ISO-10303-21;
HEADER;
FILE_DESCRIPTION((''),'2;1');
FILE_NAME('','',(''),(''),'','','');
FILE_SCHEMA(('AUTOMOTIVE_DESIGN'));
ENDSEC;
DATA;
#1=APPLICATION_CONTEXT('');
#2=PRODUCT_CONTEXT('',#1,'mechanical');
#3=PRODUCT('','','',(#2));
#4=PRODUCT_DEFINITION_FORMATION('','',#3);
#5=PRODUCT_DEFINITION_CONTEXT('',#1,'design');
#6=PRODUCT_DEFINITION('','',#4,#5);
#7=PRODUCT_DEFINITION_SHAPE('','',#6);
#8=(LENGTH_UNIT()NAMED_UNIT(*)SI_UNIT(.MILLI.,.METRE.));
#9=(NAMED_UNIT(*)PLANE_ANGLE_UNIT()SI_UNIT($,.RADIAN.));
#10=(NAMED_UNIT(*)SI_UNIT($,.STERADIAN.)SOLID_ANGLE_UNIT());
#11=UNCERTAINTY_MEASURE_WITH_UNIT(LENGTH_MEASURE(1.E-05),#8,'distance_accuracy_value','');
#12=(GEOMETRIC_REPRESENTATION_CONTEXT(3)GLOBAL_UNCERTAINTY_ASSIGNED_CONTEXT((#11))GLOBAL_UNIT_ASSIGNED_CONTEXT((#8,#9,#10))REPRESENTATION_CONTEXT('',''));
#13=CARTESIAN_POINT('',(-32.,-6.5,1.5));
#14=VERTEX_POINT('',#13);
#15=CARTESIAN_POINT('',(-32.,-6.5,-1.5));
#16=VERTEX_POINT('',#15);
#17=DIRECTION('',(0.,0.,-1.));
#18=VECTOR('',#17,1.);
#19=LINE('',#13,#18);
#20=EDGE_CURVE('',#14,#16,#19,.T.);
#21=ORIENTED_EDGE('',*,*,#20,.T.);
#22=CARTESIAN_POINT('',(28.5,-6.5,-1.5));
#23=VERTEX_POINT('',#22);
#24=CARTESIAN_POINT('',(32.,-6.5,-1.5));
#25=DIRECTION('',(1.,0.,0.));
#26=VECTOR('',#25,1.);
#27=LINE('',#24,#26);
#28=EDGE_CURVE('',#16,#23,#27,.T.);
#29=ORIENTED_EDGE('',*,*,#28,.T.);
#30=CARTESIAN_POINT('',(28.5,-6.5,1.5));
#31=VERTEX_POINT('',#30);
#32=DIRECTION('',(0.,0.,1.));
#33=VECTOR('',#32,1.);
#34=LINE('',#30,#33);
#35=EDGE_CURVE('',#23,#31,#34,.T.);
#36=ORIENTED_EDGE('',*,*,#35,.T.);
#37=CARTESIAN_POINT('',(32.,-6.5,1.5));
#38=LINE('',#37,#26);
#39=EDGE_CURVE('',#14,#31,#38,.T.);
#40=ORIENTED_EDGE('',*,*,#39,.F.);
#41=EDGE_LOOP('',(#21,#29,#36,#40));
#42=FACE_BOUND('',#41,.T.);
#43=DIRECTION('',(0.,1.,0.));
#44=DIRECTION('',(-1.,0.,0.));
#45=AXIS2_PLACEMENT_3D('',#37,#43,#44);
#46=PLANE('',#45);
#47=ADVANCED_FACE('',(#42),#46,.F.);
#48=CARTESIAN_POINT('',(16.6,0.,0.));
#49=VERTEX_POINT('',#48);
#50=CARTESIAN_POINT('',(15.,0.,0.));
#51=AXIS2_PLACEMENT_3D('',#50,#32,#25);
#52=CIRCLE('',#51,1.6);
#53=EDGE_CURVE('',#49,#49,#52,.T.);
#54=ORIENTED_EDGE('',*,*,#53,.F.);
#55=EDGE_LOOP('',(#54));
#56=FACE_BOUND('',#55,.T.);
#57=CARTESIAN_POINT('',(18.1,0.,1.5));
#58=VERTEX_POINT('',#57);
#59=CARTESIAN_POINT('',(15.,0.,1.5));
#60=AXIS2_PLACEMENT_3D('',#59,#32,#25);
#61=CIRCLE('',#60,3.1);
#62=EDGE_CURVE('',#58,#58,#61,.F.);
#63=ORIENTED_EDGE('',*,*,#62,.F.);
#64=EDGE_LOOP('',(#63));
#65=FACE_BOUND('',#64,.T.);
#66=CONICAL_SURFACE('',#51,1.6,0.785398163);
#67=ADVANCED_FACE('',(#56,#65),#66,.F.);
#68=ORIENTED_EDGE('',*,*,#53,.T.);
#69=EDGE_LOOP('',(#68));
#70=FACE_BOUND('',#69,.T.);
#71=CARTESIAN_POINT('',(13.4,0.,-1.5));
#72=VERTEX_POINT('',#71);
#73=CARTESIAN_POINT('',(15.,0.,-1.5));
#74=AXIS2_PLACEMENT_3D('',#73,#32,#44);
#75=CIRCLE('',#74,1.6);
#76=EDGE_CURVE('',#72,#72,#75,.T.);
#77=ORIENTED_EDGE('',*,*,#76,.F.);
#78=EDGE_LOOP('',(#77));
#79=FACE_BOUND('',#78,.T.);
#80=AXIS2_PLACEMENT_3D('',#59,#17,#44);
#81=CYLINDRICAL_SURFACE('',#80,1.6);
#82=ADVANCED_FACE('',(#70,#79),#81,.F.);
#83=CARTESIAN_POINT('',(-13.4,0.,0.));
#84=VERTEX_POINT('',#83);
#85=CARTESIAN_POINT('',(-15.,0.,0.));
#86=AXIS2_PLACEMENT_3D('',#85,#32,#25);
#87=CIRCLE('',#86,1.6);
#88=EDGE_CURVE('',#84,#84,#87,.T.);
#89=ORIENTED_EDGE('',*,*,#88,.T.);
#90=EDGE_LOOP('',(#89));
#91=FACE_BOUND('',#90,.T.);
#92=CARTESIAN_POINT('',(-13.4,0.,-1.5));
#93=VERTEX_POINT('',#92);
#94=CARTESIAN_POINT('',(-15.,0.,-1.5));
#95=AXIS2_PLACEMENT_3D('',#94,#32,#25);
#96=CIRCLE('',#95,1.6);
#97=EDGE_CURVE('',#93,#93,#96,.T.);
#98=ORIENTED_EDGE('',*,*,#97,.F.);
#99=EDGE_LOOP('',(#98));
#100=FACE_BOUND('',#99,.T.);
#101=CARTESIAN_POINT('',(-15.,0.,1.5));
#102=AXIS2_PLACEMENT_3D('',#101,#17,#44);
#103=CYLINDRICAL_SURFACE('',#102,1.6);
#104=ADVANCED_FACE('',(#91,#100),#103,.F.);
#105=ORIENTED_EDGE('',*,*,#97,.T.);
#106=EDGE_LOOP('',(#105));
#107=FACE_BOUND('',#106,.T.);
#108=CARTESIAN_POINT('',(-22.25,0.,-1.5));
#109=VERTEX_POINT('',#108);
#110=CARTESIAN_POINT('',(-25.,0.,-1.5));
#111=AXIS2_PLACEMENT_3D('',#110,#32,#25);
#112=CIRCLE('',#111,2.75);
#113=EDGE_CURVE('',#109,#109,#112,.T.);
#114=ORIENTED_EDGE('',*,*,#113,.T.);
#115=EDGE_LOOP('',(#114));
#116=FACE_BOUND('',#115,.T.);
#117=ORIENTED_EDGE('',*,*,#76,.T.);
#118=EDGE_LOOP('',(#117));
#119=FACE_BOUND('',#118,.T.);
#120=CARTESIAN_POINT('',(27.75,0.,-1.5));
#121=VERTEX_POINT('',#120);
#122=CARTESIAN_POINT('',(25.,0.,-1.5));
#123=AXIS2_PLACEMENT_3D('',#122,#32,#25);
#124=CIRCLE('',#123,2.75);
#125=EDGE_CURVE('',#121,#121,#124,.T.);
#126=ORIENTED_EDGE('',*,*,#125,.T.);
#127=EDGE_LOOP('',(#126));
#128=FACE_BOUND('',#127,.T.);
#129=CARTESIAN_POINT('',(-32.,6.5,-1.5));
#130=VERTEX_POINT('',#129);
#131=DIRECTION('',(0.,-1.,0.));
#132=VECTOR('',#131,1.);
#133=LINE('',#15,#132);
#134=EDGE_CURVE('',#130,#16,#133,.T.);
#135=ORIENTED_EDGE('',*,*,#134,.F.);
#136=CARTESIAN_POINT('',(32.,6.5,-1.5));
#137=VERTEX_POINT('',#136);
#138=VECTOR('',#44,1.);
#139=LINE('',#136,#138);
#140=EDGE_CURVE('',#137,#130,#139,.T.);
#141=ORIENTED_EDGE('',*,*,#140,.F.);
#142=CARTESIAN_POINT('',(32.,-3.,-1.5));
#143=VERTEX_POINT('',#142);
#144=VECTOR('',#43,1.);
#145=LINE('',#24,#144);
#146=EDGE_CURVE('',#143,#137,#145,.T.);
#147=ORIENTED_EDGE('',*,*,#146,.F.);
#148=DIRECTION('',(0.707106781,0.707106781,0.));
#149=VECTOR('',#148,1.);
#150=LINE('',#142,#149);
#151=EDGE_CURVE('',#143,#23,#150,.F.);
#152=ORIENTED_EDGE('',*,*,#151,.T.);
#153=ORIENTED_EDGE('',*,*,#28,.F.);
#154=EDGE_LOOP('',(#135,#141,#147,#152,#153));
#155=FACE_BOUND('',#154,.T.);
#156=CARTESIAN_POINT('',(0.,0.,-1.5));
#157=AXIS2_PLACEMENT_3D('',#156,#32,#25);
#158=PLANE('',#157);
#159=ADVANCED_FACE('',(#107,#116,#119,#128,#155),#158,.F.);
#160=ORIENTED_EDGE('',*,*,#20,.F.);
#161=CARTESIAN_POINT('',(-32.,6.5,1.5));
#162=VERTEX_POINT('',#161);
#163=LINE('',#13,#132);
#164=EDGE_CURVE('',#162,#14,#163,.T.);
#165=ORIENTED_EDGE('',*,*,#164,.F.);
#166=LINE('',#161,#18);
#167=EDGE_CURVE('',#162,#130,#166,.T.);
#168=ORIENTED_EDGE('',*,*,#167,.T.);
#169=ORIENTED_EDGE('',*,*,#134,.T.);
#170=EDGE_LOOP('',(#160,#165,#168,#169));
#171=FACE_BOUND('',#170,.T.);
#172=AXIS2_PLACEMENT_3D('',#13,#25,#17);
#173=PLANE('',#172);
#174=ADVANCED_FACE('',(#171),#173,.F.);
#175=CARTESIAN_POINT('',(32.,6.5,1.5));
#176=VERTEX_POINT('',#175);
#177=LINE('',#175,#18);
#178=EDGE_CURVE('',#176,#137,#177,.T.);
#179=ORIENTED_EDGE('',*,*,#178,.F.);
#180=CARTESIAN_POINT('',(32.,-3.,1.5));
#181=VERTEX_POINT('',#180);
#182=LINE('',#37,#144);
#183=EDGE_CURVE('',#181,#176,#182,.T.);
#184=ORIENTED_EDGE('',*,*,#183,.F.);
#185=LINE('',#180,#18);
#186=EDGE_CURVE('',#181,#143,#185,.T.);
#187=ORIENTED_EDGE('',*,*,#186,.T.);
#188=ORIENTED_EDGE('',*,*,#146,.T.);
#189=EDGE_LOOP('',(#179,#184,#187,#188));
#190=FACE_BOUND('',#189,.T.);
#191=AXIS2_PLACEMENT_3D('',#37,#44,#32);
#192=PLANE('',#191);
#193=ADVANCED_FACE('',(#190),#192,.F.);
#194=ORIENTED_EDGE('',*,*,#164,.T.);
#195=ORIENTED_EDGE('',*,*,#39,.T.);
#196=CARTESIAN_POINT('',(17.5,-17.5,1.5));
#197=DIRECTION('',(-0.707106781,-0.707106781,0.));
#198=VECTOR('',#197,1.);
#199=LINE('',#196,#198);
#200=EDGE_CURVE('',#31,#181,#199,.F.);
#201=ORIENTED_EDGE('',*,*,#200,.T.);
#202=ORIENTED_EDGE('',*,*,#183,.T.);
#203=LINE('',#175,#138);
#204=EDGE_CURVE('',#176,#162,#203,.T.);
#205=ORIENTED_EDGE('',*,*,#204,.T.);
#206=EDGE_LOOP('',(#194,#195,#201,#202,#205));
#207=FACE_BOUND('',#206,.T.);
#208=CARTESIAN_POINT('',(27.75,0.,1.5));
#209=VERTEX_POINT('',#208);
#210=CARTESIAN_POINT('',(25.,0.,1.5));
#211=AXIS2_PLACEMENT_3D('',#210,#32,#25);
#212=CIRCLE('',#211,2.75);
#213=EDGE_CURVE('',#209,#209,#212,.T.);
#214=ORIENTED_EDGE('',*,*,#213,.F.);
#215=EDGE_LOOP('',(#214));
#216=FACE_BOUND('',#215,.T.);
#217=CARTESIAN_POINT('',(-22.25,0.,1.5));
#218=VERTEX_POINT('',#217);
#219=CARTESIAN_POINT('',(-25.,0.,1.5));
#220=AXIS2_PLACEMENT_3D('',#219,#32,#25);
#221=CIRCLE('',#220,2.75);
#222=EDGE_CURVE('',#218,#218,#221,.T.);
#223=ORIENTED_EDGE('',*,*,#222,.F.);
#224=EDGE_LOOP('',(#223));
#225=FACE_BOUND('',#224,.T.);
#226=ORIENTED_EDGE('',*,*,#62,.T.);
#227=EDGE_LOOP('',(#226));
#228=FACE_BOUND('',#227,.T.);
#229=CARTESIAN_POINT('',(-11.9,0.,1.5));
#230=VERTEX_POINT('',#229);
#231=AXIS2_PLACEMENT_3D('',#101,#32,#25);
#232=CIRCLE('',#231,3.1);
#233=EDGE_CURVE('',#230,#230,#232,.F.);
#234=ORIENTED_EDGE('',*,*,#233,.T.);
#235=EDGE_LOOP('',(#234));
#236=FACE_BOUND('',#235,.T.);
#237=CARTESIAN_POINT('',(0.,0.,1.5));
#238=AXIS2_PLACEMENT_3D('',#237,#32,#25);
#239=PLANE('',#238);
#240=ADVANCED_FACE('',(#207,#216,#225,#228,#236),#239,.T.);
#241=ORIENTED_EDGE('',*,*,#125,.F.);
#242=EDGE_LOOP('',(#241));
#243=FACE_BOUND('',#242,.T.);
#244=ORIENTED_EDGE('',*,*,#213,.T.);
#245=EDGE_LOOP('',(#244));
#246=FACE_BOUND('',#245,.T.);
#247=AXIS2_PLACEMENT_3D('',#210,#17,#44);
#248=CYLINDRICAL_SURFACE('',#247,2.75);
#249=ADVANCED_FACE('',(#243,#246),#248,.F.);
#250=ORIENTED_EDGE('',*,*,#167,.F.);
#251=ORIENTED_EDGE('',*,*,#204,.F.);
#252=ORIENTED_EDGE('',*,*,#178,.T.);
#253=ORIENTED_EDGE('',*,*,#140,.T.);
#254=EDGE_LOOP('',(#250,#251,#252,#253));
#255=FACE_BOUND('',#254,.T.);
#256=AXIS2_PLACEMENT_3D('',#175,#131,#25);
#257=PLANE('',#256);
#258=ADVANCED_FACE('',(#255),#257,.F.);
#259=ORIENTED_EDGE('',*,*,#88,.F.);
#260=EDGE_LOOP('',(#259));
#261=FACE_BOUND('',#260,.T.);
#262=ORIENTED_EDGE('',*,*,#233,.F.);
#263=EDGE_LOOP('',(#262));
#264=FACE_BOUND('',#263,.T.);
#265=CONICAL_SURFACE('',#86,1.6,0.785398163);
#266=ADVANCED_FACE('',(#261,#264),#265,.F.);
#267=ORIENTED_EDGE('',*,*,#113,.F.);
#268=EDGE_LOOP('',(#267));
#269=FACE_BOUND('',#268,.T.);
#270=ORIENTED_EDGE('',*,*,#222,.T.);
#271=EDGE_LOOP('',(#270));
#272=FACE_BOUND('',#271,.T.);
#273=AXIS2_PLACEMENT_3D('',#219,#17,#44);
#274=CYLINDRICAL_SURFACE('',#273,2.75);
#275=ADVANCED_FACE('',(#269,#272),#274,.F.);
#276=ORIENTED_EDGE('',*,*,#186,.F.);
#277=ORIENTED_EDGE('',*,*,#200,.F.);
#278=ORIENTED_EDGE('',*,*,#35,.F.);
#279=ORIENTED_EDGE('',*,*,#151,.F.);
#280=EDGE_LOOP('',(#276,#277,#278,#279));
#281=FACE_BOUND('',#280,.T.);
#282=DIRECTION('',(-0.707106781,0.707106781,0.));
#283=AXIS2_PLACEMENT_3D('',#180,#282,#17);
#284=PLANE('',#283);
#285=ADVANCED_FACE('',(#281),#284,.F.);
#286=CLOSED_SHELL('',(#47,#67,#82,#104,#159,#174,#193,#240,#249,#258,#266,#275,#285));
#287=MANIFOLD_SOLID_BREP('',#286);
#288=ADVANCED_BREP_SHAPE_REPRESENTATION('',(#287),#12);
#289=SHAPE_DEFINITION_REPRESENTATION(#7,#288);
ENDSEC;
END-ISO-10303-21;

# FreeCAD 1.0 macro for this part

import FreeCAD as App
import Part
import Sketcher
from FreeCAD import Vector
Q = App.Units.Quantity


def edges_at(feature, points):
    """Names of the edges that pass closest to the given points."""
    edges = feature.Shape.Edges
    near = lambda p: min(range(len(edges)), key=lambda i: edges[i].distToShape(Part.Vertex(*p))[0])
    return sorted({f"Edge{near(p) + 1}" for p in points})

doc = App.newDocument("Part")
body = doc.addObject("PartDesign::Body", "Body")

sketch1 = body.newObject("Sketcher::SketchObject", "Sketch")
sketch1.AttachmentSupport = (doc.getObject("XY_Plane"), [""])
sketch1.MapMode = "FlatFace"
sketch1.addGeometry([
    Part.LineSegment(Vector(-32, 6.5, 0), Vector(-32, -6.5, 0)),
    Part.LineSegment(Vector(-32, -6.5, 0), Vector(32, -6.5, 0)),
    Part.LineSegment(Vector(32, -6.5, 0), Vector(32, 6.5, 0)),
    Part.LineSegment(Vector(32, 6.5, 0), Vector(-32, 6.5, 0)),
    Part.Circle(Vector(-25, 0, 0), Vector(0, 0, 1), 2.8),
    Part.Circle(Vector(-15, 0, 0), Vector(0, 0, 1), 1.6),
    Part.Circle(Vector(15, 0, 0), Vector(0, 0, 1), 1.6),
    Part.Circle(Vector(25, 0, 0), Vector(0, 0, 1), 2.8),
], False)
sketch1.addConstraint([
    Sketcher.Constraint("Coincident", 0, 2, 1, 1),
    Sketcher.Constraint("Coincident", 1, 2, 2, 1),
    Sketcher.Constraint("Coincident", 2, 2, 3, 1),
    Sketcher.Constraint("Coincident", 3, 2, 0, 1),
    Sketcher.Constraint("Vertical", 0),
    Sketcher.Constraint("Horizontal", 1),
    Sketcher.Constraint("Vertical", 2),
    Sketcher.Constraint("Horizontal", 3),
    Sketcher.Constraint("Equal", 5, 6),
    Sketcher.Constraint("Equal", 4, 7),
    Sketcher.Constraint("Symmetric", 5, 3, 6, 3, -1, 1),
    Sketcher.Constraint("Symmetric", 4, 3, 7, 3, -1, 1),
    Sketcher.Constraint("Symmetric", 0, 2, 2, 2, -1, 1),
    Sketcher.Constraint("PointOnObject", 4, 3, -1),
    Sketcher.Constraint("PointOnObject", 5, 3, -1),
    Sketcher.Constraint("Diameter", 4, Q("5.5 mm")),
    Sketcher.Constraint("Diameter", 5, Q("3.2 mm")),
    Sketcher.Constraint("DistanceX", 1, 1, 1, 2, Q("64 mm")),
    Sketcher.Constraint("DistanceY", 0, 2, 0, 1, Q("13 mm")),
    Sketcher.Constraint("DistanceX", 4, 3, -1, 1, Q("25 mm")),
    Sketcher.Constraint("DistanceX", 5, 3, -1, 1, Q("15 mm")),
])
pad1 = body.newObject("PartDesign::Pad", "Pad")
pad1.Profile = sketch1
pad1.Length = 3
pad1.Midplane = True
doc.recompute()

chamfer = body.newObject("PartDesign::Chamfer", "Chamfer")
chamfer.Base = (pad1, edges_at(pad1, [(32, -6.5, 0)]))
chamfer.Size = 3.5
doc.recompute()

chamfer2 = body.newObject("PartDesign::Chamfer", "Chamfer001")
chamfer2.Base = (chamfer, edges_at(chamfer, [(-16.6, 0, 1.5), (16.6, 0, 1.5)]))
chamfer2.Size = 1.5

doc.recompute()
